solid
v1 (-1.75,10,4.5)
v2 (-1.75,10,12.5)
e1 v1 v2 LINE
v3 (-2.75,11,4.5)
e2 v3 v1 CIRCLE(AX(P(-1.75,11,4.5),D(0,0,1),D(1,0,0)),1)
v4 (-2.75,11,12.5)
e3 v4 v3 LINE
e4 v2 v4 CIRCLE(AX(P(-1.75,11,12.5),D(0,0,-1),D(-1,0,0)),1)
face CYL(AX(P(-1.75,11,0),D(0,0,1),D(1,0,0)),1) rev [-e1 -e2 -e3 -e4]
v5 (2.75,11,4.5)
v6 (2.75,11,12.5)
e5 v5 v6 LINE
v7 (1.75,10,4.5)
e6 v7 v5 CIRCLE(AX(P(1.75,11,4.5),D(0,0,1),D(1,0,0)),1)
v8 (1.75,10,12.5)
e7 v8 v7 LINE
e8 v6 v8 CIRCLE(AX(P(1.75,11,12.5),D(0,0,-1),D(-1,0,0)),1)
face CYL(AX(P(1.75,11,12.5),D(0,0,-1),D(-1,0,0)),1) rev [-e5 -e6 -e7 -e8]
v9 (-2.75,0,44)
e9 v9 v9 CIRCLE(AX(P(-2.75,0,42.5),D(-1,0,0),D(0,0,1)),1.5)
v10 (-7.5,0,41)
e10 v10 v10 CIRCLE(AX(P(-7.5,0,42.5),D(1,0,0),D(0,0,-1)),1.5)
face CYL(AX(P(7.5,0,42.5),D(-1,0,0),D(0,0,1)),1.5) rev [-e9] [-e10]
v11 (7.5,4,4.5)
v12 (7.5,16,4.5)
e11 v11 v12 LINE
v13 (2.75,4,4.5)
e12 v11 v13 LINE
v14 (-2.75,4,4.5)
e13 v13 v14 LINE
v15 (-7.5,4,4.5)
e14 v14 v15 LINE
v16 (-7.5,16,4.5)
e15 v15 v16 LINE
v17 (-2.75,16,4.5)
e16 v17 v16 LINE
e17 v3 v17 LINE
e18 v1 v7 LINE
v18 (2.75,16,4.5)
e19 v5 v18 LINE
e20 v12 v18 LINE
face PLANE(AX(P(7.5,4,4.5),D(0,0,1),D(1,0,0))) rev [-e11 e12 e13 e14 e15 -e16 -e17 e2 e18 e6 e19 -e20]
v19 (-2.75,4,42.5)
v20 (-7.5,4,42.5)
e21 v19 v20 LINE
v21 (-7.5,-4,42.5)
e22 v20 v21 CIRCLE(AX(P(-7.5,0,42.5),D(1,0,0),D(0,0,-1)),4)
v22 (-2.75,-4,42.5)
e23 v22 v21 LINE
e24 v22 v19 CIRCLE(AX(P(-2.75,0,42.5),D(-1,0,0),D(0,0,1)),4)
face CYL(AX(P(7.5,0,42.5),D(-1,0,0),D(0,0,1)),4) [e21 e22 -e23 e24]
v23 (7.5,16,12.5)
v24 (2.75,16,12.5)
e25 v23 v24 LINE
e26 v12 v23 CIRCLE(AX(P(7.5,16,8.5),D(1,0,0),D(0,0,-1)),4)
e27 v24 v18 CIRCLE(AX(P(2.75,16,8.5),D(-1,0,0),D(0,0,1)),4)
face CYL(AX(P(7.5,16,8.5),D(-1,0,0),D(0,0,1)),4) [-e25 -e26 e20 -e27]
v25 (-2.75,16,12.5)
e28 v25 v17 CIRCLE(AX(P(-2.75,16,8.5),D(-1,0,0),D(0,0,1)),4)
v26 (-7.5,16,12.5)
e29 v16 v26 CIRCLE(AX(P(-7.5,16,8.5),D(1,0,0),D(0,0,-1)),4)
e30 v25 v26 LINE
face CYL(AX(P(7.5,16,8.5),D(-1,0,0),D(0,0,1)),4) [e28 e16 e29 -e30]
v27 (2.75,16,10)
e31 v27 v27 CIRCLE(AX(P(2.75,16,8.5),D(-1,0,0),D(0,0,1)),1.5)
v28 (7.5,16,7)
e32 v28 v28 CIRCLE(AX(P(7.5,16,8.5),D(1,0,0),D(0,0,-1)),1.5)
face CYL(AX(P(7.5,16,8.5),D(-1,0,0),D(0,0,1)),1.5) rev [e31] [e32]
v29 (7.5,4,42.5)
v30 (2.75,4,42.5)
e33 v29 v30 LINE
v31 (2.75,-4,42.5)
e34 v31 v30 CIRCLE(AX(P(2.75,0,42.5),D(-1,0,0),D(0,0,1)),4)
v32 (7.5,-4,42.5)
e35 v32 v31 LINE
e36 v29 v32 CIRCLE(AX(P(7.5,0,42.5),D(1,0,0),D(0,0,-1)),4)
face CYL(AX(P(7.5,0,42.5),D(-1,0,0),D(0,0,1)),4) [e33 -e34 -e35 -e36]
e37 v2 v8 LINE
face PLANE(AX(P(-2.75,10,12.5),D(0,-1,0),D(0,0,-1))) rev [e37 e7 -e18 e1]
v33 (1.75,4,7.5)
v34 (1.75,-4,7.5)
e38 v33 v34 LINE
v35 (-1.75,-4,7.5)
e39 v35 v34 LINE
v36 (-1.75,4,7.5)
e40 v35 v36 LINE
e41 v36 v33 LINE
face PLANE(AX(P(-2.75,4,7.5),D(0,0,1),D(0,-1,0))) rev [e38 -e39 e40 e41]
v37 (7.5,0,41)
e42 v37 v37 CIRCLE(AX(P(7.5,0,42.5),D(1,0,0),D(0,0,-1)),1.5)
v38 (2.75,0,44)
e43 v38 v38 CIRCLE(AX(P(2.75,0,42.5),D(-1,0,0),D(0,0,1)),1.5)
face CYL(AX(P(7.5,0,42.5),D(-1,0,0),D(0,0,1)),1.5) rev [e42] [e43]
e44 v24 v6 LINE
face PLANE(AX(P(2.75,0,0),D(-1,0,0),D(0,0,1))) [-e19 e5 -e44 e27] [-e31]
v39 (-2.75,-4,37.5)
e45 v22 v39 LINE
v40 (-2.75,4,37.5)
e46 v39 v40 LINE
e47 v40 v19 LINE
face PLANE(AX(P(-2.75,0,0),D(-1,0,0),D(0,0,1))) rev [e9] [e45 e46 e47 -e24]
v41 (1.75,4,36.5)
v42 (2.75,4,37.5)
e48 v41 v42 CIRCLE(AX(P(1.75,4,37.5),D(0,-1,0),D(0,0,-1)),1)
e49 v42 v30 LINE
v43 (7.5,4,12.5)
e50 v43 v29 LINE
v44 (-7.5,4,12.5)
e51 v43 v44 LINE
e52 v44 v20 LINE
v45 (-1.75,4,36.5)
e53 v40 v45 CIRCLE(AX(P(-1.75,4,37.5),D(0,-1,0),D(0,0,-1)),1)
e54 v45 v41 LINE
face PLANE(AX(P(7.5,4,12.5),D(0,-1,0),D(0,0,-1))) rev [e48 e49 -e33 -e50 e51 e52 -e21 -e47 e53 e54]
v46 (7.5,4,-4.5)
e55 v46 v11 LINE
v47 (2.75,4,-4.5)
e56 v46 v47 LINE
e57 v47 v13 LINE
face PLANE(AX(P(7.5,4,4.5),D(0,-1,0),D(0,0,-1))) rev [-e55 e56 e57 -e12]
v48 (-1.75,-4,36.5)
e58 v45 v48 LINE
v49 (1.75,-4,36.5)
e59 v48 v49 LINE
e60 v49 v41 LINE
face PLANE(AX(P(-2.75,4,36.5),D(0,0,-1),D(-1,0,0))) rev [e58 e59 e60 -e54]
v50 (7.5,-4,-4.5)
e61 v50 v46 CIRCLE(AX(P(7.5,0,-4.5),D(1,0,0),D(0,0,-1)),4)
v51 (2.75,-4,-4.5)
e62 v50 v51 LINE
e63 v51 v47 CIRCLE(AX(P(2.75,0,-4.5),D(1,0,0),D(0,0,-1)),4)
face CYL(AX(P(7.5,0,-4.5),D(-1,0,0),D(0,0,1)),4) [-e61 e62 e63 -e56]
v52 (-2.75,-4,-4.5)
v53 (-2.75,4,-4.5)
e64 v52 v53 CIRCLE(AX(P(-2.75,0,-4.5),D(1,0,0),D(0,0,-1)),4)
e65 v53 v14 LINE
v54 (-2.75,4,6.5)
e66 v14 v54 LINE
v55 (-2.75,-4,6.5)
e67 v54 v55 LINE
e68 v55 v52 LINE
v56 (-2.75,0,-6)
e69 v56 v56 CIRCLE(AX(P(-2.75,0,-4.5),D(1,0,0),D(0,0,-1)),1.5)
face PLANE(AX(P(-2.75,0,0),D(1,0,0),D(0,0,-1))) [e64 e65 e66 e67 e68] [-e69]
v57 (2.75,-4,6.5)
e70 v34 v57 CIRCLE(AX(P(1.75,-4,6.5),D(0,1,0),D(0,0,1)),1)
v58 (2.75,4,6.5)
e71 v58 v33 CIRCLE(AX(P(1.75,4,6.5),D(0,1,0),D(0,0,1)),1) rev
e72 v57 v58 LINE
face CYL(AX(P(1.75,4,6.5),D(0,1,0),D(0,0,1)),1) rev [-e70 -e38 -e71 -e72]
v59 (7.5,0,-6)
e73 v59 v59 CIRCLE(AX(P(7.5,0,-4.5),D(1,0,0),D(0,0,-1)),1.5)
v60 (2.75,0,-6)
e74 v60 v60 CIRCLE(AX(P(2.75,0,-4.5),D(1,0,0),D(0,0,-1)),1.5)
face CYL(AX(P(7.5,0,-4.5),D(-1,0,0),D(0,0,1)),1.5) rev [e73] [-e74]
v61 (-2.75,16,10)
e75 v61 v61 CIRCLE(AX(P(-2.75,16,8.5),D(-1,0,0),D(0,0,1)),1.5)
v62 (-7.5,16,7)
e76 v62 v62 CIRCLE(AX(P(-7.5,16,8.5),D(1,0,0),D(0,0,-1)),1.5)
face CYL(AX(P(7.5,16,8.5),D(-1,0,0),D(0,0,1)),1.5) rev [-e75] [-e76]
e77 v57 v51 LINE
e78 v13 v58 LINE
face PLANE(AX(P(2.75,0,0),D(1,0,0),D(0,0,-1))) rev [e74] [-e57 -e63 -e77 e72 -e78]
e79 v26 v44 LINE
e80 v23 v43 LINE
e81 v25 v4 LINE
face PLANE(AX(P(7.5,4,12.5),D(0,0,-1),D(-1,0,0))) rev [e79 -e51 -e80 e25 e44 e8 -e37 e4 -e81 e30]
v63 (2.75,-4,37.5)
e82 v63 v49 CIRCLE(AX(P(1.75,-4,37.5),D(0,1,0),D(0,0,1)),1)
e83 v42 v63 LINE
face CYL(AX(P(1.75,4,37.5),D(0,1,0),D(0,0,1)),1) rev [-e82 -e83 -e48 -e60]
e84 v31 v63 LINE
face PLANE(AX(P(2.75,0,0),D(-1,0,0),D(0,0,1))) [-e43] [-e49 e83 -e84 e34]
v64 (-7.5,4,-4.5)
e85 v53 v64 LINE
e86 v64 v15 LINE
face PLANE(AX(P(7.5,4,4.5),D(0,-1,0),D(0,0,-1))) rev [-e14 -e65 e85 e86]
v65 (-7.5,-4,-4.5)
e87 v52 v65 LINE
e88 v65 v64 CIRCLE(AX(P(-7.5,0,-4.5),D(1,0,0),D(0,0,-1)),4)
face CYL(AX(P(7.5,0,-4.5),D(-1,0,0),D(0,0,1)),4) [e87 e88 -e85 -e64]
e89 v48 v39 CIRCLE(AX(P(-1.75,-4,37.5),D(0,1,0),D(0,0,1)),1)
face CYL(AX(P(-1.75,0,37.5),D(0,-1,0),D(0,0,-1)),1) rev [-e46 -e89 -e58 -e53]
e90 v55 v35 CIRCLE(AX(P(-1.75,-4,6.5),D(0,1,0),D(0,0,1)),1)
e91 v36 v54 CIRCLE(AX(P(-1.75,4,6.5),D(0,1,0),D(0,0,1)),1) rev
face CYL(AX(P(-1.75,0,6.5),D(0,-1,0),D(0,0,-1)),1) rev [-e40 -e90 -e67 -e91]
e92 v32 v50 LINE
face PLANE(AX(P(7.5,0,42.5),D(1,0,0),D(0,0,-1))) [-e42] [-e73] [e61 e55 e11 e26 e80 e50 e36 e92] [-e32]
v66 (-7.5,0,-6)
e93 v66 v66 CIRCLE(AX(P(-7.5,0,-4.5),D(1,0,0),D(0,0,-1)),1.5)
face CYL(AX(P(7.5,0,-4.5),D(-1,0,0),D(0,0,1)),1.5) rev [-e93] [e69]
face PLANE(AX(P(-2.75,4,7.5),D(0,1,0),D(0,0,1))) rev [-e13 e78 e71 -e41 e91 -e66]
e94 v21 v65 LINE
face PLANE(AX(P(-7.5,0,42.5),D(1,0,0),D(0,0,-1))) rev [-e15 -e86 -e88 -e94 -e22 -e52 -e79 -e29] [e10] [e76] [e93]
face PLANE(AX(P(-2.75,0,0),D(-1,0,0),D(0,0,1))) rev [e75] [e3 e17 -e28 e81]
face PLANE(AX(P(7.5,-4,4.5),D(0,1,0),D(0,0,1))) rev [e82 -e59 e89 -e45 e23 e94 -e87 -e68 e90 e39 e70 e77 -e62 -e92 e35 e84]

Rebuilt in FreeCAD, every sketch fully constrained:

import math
import FreeCAD as App
import Part
import Sketcher
from FreeCAD import Vector
Q = App.Units.Quantity


def edges_at(feature, points):
    """Names of the edges that pass closest to the given points."""
    edges = feature.Shape.Edges
    near = lambda p: min(range(len(edges)), key=lambda i: edges[i].distToShape(Part.Vertex(*p))[0])
    return sorted({f"Edge{near(p) + 1}" for p in points})

doc = App.newDocument("Part")
body = doc.addObject("PartDesign::Body", "Body")

sketch1 = body.newObject("Sketcher::SketchObject", "Sketch")
sketch1.AttachmentSupport = (doc.getObject("YZ_Plane"), [""])
sketch1.MapMode = "FlatFace"
sketch1.addGeometry([
    Part.ArcOfCircle(Part.Circle(Vector(0, -4.5, 0), Vector(0, 0, 1), 4), math.radians(180), math.radians(360)),
    Part.LineSegment(Vector(4, -4.5, 0), Vector(4, 4.5, 0)),
    Part.LineSegment(Vector(4, 4.5, 0), Vector(16, 4.5, 0)),
    Part.ArcOfCircle(Part.Circle(Vector(16, 8.5, 0), Vector(0, 0, 1), 4), math.radians(-90), math.radians(90)),
    Part.LineSegment(Vector(16, 12.5, 0), Vector(4, 12.5, 0)),
    Part.LineSegment(Vector(4, 12.5, 0), Vector(4, 42.5, 0)),
    Part.ArcOfCircle(Part.Circle(Vector(0, 42.5, 0), Vector(0, 0, 1), 4), math.radians(0), math.radians(180)),
    Part.LineSegment(Vector(-4, 42.5, 0), Vector(-4, -4.5, 0)),
    Part.Circle(Vector(0, 42.5, 0), Vector(0, 0, 1), 1.5),
    Part.Circle(Vector(0, -4.5, 0), Vector(0, 0, 1), 1.5),
    Part.Circle(Vector(16, 8.5, 0), Vector(0, 0, 1), 1.5),
], False)
sketch1.addConstraint([
    Sketcher.Constraint("Tangent", 0, 2, 1, 1),
    Sketcher.Constraint("Coincident", 1, 2, 2, 1),
    Sketcher.Constraint("Tangent", 2, 2, 3, 1),
    Sketcher.Constraint("Tangent", 3, 2, 4, 1),
    Sketcher.Constraint("Coincident", 4, 2, 5, 1),
    Sketcher.Constraint("Tangent", 5, 2, 6, 1),
    Sketcher.Constraint("Tangent", 6, 2, 7, 1),
    Sketcher.Constraint("Tangent", 7, 2, 0, 1),
    Sketcher.Constraint("Vertical", 1),
    Sketcher.Constraint("Horizontal", 2),
    Sketcher.Constraint("Horizontal", 4),
    Sketcher.Constraint("Vertical", 5),
    Sketcher.Constraint("Vertical", 7),
    Sketcher.Constraint("Coincident", 8, 3, 6, 3),
    Sketcher.Constraint("Coincident", 9, 3, 0, 3),
    Sketcher.Constraint("Coincident", 10, 3, 3, 3),
    Sketcher.Constraint("Equal", 0, 3),
    Sketcher.Constraint("Equal", 3, 6),
    Sketcher.Constraint("Equal", 8, 9),
    Sketcher.Constraint("Equal", 9, 10),
    Sketcher.Constraint("Symmetric", 1, 2, 7, 2, -1, 1),
    Sketcher.Constraint("Diameter", 8, Q("3 mm")),
    Sketcher.Constraint("Radius", 0, Q("4 mm")),
    Sketcher.Constraint("DistanceX", 2, 1, 2, 2, Q("12 mm")),
    Sketcher.Constraint("DistanceY", 1, 1, 1, 2, Q("9 mm")),
    Sketcher.Constraint("DistanceY", 5, 1, 5, 2, Q("30 mm")),
])
pad1 = body.newObject("PartDesign::Pad", "Pad")
pad1.Profile = sketch1
pad1.Length = 15
pad1.Midplane = True

sketch2 = body.newObject("Sketcher::SketchObject", "Sketch001")
sketch2.AttachmentSupport = (doc.getObject("YZ_Plane"), [""])
sketch2.MapMode = "FlatFace"
sketch2.addGeometry([
    Part.LineSegment(Vector(20, 12.5, 0), Vector(10, 12.5, 0)),
    Part.LineSegment(Vector(10, 12.5, 0), Vector(10, 4.5, 0)),
    Part.LineSegment(Vector(10, 4.5, 0), Vector(20, 4.5, 0)),
    Part.LineSegment(Vector(20, 4.5, 0), Vector(20, 12.5, 0)),
    Part.LineSegment(Vector(4, 7.5, 0), Vector(-4, 7.5, 0)),
    Part.LineSegment(Vector(-4, 7.5, 0), Vector(-4, -8.5, 0)),
    Part.LineSegment(Vector(-4, -8.5, 0), Vector(4, -8.5, 0)),
    Part.LineSegment(Vector(4, -8.5, 0), Vector(4, 7.5, 0)),
    Part.LineSegment(Vector(4, 46.5, 0), Vector(-4, 46.5, 0)),
    Part.LineSegment(Vector(-4, 46.5, 0), Vector(-4, 36.5, 0)),
    Part.LineSegment(Vector(-4, 36.5, 0), Vector(4, 36.5, 0)),
    Part.LineSegment(Vector(4, 36.5, 0), Vector(4, 46.5, 0)),
], False)
sketch2.addConstraint([
    Sketcher.Constraint("Coincident", 0, 2, 1, 1),
    Sketcher.Constraint("Coincident", 1, 2, 2, 1),
    Sketcher.Constraint("Coincident", 2, 2, 3, 1),
    Sketcher.Constraint("Coincident", 3, 2, 0, 1),
    Sketcher.Constraint("Coincident", 4, 2, 5, 1),
    Sketcher.Constraint("Coincident", 5, 2, 6, 1),
    Sketcher.Constraint("Coincident", 6, 2, 7, 1),
    Sketcher.Constraint("Coincident", 7, 2, 4, 1),
    Sketcher.Constraint("Coincident", 8, 2, 9, 1),
    Sketcher.Constraint("Coincident", 9, 2, 10, 1),
    Sketcher.Constraint("Coincident", 10, 2, 11, 1),
    Sketcher.Constraint("Coincident", 11, 2, 8, 1),
    Sketcher.Constraint("Horizontal", 0),
    Sketcher.Constraint("Vertical", 1),
    Sketcher.Constraint("Horizontal", 2),
    Sketcher.Constraint("Vertical", 3),
    Sketcher.Constraint("Horizontal", 4),
    Sketcher.Constraint("Vertical", 5),
    Sketcher.Constraint("Horizontal", 6),
    Sketcher.Constraint("Vertical", 7),
    Sketcher.Constraint("Horizontal", 8),
    Sketcher.Constraint("Vertical", 9),
    Sketcher.Constraint("Horizontal", 10),
    Sketcher.Constraint("Vertical", 11),
    Sketcher.Constraint("Vertical", 5, 2, 8, 2),
    Sketcher.Constraint("Vertical", 7, 2, 10, 2),
    Sketcher.Constraint("Equal", 10, 1),
    Sketcher.Constraint("Equal", 2, 9),
    Sketcher.Constraint("DistanceX", 0, 2, 0, 1, Q("10 mm")),
    Sketcher.Constraint("DistanceX", 4, 2, 4, 1, Q("8 mm")),
    Sketcher.Constraint("DistanceY", 5, 2, 5, 1, Q("16 mm")),
    Sketcher.Constraint("DistanceX", -1, 1, 0, 2, Q("10 mm")),
    Sketcher.Constraint("DistanceX", 4, 2, -1, 1, Q("4 mm")),
    Sketcher.Constraint("DistanceY", 1, 2, 4, 2, Q("3 mm")),
    Sketcher.Constraint("DistanceY", 0, 2, 8, 2, Q("34 mm")),
    Sketcher.Constraint("DistanceY", -1, 1, 0, 2, Q("12.5 mm")),
])
pocket1 = body.newObject("PartDesign::Pocket", "Pocket")
pocket1.Profile = sketch2
pocket1.Length = 5.5
pocket1.Midplane = True
doc.recompute()

fillet = body.newObject("PartDesign::Fillet", "Fillet")
fillet.Base = (pocket1, edges_at(pocket1, [
    (2.75, 10, 8.5),
    (-2.75, 10, 8.5),
    (2.75, 0, 36.5),
    (-2.75, 0, 36.5),
    (2.75, 0, 7.5),
    (-2.75, 0, 7.5),
]))
fillet.Radius = 1

doc.recompute()
